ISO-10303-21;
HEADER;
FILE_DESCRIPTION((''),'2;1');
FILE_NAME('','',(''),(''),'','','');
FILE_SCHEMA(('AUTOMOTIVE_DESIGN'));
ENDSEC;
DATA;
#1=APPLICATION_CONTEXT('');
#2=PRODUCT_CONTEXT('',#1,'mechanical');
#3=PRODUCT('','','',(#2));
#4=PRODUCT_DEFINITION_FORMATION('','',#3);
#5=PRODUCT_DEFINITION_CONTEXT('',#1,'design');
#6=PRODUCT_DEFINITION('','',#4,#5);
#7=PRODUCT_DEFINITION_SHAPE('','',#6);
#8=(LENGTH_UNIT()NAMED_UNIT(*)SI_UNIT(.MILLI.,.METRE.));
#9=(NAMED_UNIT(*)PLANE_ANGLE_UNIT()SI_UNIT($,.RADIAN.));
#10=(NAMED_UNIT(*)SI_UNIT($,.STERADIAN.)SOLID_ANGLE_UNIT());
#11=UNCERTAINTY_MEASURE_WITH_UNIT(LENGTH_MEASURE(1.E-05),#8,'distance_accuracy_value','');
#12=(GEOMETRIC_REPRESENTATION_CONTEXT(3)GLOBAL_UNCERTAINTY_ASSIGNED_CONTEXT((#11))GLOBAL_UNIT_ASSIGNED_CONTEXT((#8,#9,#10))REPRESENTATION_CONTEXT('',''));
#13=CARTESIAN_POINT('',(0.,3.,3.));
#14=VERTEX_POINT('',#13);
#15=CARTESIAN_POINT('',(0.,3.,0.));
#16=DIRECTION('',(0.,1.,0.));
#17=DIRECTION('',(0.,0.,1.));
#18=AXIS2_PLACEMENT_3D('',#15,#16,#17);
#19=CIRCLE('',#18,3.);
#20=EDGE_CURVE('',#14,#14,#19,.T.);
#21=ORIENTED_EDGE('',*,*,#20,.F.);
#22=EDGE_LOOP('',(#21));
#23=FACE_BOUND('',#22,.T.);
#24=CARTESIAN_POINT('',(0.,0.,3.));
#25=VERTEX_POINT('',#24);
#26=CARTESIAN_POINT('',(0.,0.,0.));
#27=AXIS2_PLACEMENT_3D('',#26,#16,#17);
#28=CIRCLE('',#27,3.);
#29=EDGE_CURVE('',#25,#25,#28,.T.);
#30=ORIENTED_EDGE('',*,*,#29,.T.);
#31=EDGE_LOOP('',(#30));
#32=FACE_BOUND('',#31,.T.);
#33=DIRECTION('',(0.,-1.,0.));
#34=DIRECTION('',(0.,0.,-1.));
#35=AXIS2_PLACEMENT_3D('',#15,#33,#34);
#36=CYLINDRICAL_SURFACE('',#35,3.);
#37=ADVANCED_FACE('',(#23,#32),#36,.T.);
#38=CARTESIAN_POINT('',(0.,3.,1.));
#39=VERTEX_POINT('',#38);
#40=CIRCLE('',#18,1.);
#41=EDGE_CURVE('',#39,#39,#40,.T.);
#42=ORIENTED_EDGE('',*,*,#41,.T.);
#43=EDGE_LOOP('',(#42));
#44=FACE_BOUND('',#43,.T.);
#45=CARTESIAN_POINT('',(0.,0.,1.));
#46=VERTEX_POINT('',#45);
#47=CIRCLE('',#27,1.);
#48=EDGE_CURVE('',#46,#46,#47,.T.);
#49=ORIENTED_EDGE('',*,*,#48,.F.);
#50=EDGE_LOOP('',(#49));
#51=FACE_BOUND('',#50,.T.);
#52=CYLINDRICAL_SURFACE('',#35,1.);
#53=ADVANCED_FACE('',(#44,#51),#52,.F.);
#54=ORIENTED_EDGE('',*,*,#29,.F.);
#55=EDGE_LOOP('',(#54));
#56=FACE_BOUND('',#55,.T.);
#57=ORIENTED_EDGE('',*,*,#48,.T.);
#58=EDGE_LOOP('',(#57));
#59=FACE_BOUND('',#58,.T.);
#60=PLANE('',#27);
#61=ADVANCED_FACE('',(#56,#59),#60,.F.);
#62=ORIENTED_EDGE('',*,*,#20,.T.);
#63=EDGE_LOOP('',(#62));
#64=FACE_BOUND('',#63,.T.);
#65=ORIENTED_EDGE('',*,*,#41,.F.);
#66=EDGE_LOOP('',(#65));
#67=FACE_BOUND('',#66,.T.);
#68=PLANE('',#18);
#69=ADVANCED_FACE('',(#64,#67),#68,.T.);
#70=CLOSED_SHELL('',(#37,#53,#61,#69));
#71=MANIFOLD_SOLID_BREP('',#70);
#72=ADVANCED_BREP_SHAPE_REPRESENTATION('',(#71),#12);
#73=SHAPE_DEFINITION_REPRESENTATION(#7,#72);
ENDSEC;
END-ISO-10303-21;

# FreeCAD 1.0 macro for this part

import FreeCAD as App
import Part
import Sketcher

doc = App.newDocument("Part")
body = doc.addObject("PartDesign::Body", "Body")

# Sketch on XZ plane
sketch1 = body.newObject("Sketcher::SketchObject", "Sketch")
sketch1.AttachmentSupport = (doc.getObject("XZ_Plane"), [""])
sketch1.MapMode = "FlatFace"
sketch1.addGeometry([
    Part.Circle(App.Vector(0, 0, 0), App.Vector(0, 0, 1), 3),
    Part.Circle(App.Vector(0, 0, 0), App.Vector(0, 0, 1), 1),
], False)
sketch1.addConstraint([
    Sketcher.Constraint("Coincident", 0, 3, -1, 1),
    Sketcher.Constraint("Coincident", 1, 3, -1, 1),
    Sketcher.Constraint("Diameter", 0, 6.0),
    Sketcher.Constraint("Diameter", 1, 2.0),
])
pad1 = body.newObject("PartDesign::Pad", "Pad")
pad1.Profile = sketch1
pad1.Length = 3
pad1.Reversed = True

doc.recompute()
